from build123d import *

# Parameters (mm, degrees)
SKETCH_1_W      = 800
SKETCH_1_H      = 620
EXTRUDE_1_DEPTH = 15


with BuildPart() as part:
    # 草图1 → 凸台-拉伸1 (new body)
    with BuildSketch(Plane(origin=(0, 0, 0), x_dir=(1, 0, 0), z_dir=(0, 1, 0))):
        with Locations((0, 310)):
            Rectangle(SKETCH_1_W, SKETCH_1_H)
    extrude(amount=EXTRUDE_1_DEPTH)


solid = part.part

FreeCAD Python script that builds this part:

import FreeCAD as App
import Part
import Sketcher
Q = App.Units.Quantity


def add_polygon(sketch, points):
    """Adds a closed chain of lines whose ends are joined by coincident constraints."""
    first, n = sketch.GeometryCount, len(points)
    for a, b in zip(points, points[1:] + points[:1]):
        sketch.addGeometry(Part.LineSegment(App.Vector(*a, 0), App.Vector(*b, 0)), False)
    for i in range(n):
        sketch.addConstraint(Sketcher.Constraint("Coincident", first + i, 2, first + (i + 1) % n, 1))

doc = App.newDocument("Part")
body = doc.addObject("PartDesign::Body", "Body")

# Sketch on XZ plane
sketch1 = body.newObject("Sketcher::SketchObject", "Sketch")
sketch1.AttachmentSupport = (doc.getObject("XZ_Plane"), [""])
sketch1.MapMode = "FlatFace"
add_polygon(sketch1, [(-400, -620), (-400, 0), (400, 0), (400, -620)])  # lines 0-3
sketch1.addConstraint([
    Sketcher.Constraint("Vertical", 0),
    Sketcher.Constraint("Horizontal", 1),
    Sketcher.Constraint("Vertical", 2),
    Sketcher.Constraint("Horizontal", 3),
    Sketcher.Constraint("Symmetric", 0, 2, 1, 2, -1, 1),
    Sketcher.Constraint("DistanceX", 1, 1, 1, 2, Q("800 mm")),
    Sketcher.Constraint("DistanceY", 0, 1, 0, 2, Q("620 mm")),
])
pad1 = body.newObject("PartDesign::Pad", "Pad")
pad1.Profile = sketch1
pad1.Length = 15
pad1.Reversed = True

doc.recompute()
